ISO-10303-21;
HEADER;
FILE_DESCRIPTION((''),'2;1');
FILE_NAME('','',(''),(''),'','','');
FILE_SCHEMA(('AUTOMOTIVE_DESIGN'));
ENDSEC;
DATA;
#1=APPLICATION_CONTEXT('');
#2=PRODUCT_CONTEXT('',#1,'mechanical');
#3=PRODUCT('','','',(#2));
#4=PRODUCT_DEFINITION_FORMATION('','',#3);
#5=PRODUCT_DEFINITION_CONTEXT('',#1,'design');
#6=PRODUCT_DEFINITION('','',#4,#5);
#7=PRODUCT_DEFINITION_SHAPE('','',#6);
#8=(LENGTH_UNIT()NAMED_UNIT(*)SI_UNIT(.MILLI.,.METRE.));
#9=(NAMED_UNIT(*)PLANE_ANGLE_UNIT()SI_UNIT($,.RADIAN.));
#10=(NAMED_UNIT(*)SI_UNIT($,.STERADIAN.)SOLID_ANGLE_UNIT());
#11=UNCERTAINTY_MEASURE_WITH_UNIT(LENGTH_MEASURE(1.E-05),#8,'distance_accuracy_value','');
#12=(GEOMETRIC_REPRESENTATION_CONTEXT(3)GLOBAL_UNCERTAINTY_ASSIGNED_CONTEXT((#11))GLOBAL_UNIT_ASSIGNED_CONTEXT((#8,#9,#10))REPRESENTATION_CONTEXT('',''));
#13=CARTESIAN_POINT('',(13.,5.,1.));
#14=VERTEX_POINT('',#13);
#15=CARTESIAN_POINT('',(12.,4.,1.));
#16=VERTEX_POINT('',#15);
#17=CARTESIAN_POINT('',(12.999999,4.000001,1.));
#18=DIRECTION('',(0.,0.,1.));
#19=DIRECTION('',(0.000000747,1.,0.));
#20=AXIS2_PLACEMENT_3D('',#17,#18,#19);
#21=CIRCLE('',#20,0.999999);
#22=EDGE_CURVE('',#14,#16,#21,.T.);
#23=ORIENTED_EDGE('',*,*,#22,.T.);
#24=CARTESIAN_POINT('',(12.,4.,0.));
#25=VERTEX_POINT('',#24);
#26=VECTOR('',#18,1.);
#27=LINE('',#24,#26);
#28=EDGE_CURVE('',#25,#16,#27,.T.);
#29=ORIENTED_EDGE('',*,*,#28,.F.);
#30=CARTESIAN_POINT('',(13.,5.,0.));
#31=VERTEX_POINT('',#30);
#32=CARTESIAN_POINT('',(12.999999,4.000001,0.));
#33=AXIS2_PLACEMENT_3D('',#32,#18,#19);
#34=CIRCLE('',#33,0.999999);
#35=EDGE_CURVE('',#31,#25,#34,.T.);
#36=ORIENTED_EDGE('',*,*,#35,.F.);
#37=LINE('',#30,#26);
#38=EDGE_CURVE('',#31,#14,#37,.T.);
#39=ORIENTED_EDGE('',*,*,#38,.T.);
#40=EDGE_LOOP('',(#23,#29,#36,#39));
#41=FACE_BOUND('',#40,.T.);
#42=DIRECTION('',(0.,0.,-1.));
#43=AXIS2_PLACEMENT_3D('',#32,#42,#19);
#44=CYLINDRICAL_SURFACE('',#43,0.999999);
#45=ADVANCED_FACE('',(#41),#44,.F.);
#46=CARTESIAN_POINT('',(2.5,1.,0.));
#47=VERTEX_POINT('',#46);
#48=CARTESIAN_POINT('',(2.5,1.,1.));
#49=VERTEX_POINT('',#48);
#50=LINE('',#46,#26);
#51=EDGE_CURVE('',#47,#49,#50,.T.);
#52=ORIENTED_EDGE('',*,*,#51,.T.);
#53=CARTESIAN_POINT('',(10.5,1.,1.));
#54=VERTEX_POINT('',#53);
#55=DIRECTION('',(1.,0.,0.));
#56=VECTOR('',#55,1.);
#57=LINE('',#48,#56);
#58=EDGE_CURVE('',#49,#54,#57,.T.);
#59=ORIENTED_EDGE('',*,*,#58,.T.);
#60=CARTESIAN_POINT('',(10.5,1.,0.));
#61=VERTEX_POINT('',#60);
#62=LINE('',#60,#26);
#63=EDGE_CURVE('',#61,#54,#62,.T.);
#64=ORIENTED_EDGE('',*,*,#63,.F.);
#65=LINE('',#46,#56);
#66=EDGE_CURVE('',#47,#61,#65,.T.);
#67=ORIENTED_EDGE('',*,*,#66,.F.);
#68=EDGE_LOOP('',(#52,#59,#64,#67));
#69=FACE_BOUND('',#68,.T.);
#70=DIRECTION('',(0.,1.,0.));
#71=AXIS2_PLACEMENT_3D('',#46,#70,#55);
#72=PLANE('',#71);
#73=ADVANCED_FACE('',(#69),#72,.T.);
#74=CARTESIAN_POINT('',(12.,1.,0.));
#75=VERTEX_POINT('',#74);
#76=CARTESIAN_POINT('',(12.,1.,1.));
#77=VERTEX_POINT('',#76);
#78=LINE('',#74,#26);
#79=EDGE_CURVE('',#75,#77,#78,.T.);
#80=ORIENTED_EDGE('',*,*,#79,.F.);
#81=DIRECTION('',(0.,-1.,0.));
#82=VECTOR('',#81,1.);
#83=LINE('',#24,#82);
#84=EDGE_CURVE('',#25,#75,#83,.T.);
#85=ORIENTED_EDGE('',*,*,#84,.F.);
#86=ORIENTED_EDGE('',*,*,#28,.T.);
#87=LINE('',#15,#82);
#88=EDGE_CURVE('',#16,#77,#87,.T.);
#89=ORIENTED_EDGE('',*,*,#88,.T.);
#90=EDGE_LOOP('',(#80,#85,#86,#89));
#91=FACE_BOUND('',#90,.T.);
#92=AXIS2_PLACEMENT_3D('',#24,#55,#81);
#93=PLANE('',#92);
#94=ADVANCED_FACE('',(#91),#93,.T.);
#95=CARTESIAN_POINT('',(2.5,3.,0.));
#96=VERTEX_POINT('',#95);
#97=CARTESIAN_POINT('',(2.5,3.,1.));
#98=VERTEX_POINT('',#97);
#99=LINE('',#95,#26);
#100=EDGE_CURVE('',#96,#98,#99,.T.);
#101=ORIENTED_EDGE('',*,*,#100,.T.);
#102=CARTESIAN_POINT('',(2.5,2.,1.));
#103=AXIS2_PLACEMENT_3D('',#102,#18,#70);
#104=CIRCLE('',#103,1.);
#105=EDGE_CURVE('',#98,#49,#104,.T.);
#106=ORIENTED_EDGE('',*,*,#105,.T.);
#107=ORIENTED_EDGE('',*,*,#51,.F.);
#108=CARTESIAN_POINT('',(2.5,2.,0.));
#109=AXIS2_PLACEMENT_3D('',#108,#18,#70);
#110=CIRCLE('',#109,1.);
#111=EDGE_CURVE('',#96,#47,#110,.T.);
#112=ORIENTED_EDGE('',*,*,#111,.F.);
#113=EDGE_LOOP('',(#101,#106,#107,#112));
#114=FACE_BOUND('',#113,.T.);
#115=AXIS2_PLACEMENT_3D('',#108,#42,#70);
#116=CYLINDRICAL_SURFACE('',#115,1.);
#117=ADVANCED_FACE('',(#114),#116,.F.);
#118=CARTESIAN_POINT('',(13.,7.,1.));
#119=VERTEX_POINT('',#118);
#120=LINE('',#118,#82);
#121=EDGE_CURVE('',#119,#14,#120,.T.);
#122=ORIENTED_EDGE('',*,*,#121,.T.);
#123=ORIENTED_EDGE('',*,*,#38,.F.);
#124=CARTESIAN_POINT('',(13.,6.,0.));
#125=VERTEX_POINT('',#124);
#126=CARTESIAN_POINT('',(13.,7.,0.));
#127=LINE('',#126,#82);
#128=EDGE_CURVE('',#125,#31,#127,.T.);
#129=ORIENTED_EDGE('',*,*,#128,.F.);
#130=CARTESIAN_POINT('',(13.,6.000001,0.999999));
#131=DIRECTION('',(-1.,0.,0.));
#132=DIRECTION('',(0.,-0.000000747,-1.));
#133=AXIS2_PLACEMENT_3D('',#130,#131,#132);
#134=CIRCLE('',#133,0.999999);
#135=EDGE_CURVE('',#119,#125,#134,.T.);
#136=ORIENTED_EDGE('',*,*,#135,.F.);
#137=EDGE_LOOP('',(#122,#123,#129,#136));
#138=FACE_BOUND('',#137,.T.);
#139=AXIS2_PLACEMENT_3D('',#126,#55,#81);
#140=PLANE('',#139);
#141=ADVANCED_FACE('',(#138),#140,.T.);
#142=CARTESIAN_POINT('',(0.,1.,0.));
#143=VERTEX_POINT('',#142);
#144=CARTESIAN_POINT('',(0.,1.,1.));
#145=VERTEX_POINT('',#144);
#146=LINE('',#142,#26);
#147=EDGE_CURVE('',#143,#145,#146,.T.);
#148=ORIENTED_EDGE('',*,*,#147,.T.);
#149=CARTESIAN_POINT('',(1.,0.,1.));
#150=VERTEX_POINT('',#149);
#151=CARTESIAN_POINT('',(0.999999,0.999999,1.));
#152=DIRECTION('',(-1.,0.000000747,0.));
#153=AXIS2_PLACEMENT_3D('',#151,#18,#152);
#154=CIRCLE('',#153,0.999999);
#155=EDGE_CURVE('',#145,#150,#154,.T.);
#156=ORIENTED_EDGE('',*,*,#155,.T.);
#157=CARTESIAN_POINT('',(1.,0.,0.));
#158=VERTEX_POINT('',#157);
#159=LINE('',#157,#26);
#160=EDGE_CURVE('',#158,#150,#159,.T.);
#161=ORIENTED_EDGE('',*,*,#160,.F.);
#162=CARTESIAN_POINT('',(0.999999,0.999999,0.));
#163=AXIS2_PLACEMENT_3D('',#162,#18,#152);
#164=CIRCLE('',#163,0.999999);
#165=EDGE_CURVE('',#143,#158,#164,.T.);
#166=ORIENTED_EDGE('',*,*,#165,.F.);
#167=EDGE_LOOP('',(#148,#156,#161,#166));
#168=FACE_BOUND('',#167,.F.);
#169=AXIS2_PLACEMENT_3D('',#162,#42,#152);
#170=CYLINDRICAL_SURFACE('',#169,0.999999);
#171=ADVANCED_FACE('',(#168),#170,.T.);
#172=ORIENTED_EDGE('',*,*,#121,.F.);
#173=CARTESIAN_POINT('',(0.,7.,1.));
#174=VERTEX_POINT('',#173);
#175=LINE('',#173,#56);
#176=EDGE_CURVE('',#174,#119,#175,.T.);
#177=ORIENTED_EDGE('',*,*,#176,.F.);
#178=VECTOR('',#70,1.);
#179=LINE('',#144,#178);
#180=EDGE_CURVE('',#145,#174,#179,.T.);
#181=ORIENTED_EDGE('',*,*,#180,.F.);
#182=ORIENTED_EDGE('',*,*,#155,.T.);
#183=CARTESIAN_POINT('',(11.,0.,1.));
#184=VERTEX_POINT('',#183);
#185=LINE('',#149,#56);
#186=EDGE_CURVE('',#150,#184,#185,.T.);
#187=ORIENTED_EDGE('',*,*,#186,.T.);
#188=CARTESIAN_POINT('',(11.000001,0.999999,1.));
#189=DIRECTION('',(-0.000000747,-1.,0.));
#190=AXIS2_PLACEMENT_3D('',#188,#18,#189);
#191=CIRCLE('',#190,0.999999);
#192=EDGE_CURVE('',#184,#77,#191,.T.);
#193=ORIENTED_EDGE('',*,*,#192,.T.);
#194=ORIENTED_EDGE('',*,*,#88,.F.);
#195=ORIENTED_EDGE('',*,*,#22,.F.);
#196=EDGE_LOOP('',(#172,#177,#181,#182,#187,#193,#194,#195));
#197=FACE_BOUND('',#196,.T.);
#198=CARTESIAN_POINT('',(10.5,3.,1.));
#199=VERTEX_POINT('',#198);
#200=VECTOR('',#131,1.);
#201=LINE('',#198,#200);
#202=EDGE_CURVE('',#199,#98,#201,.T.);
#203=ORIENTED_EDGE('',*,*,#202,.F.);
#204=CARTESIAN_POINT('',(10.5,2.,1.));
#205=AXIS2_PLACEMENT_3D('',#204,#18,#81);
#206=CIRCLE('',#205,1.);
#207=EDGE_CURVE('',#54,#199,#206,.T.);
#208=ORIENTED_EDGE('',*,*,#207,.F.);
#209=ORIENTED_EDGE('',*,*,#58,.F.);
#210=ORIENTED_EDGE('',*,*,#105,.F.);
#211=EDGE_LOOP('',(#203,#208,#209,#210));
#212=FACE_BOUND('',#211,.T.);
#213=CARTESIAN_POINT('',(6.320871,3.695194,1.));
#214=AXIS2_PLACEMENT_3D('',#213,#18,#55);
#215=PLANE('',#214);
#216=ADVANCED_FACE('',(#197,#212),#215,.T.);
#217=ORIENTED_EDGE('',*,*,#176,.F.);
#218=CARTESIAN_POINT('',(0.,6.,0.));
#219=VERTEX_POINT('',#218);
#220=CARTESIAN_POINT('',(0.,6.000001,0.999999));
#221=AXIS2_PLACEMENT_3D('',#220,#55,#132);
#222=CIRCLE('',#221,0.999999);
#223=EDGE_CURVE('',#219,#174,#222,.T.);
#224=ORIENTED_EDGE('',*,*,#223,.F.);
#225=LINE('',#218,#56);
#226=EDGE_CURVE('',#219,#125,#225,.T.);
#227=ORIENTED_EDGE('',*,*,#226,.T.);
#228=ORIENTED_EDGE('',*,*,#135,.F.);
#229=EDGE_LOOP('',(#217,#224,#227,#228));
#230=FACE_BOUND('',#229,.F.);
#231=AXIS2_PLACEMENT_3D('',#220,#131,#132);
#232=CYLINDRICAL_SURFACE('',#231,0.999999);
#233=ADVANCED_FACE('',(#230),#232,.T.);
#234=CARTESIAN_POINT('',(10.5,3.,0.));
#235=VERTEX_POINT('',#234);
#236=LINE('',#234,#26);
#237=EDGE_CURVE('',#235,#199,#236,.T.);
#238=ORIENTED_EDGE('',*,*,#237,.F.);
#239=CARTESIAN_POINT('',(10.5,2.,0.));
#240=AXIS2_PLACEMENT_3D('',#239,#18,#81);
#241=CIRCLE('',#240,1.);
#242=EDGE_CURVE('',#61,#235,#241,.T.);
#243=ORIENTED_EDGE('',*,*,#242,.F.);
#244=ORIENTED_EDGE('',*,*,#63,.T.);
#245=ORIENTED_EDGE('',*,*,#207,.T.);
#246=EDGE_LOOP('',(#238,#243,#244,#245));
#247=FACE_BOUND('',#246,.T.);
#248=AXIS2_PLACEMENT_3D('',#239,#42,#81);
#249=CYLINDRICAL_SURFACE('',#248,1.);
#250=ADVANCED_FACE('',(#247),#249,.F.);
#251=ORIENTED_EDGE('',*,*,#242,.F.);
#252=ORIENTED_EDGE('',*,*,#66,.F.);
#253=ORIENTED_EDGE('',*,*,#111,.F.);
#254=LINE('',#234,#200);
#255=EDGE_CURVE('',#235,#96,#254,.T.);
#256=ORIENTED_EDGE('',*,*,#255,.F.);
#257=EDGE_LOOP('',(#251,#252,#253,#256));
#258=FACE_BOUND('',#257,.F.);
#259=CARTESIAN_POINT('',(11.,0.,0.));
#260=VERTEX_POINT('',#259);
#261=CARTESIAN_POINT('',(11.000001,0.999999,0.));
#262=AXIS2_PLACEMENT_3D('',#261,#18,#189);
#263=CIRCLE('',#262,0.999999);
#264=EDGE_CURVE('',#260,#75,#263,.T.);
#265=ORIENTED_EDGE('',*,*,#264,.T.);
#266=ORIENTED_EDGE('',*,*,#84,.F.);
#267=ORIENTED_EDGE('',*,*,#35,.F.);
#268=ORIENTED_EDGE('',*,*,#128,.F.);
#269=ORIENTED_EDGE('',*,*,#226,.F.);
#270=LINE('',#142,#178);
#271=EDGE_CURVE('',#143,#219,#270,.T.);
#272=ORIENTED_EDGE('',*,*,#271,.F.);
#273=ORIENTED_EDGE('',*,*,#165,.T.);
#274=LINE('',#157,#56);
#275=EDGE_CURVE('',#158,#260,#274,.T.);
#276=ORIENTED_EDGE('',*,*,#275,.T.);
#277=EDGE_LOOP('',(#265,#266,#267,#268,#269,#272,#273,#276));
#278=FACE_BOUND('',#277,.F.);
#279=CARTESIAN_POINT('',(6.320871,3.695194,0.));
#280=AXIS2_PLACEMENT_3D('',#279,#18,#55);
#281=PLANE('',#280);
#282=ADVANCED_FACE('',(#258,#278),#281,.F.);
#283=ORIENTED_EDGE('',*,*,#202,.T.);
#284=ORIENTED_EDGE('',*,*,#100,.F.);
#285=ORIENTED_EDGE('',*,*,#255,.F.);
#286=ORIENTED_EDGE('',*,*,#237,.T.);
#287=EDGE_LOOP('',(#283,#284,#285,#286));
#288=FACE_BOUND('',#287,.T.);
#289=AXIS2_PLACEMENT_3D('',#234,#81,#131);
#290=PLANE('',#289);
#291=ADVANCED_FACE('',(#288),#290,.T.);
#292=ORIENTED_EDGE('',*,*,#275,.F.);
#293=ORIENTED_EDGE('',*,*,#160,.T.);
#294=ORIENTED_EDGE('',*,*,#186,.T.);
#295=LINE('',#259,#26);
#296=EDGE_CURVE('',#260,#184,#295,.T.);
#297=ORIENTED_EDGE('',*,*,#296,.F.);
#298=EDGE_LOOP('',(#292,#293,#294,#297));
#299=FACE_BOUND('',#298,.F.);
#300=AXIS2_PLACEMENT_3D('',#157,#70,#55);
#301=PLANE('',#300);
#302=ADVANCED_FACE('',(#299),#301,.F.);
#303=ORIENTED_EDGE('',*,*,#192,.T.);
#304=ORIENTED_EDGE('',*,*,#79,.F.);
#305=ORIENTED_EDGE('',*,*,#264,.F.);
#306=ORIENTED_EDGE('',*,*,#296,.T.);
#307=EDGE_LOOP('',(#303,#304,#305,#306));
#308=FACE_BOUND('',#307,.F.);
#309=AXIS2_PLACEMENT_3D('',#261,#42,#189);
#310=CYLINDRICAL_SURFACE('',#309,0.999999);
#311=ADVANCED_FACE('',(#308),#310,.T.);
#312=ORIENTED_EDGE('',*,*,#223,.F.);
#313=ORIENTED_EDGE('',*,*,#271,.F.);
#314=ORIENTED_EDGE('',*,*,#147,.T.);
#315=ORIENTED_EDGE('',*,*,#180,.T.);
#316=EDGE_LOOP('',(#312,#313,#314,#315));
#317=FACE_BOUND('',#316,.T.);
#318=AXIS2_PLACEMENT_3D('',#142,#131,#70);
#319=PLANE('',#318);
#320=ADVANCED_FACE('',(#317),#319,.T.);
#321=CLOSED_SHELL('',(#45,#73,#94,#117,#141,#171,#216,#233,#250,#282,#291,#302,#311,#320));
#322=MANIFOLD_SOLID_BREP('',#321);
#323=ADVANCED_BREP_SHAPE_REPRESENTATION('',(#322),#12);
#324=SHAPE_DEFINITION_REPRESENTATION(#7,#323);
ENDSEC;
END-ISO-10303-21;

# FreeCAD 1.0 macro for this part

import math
import FreeCAD as App
import Part
import Sketcher
from FreeCAD import Vector

doc = App.newDocument("Part")
body = doc.addObject("PartDesign::Body", "Body")

# Sketch on YZ plane
sketch1 = doc.addObject("Sketcher::SketchObject", "Sketch")
body.addObject(sketch1)
sketch1.AttachmentSupport = (doc.YZ_Plane, [""])
sketch1.MapMode = "FlatFace"
sketch1.addGeometry(Part.ArcOfCircle(Part.Circle(Vector(6, 1, 0), Vector(0, 0, 1), 1), math.radians(-90), math.radians(0)), False)
sketch1.addGeometry(Part.LineSegment(Vector(6, 0, 0), Vector(7, 0, 0)), False)
sketch1.addGeometry(Part.LineSegment(Vector(7, 0, 0), Vector(7, 1, 0)), False)
sketch1.addConstraint(Sketcher.Constraint("Tangent", 0, 1, 1, 1))
sketch1.addConstraint(Sketcher.Constraint("Coincident", 1, 2, 2, 1))
sketch1.addConstraint(Sketcher.Constraint("Tangent", 2, 2, 0, 2))
sketch1.addConstraint(Sketcher.Constraint("Horizontal", 1))
sketch1.addConstraint(Sketcher.Constraint("Vertical", 2))
sketch1.addConstraint(Sketcher.Constraint("PointOnObject", 0, 1, -1))
sketch1.addConstraint(Sketcher.Constraint("Radius", 0, 0.999999))
sketch1.addConstraint(Sketcher.Constraint("DistanceX", -1, 1, 0, 3, 6.000001))
pad1 = doc.addObject("PartDesign::Pad", "Pad")
body.addObject(pad1)
pad1.Profile = sketch1
pad1.Length = 15
body2 = doc.addObject("PartDesign::Body", "Body001")

# Sketch on XY plane
sketch2 = doc.addObject("Sketcher::SketchObject", "Sketch001")
body2.addObject(sketch2)
sketch2.AttachmentSupport = (doc.getObject("XY_Plane001"), [""])
sketch2.MapMode = "FlatFace"
sketch2.addGeometry(Part.ArcOfCircle(Part.Circle(Vector(10.5, 2, 0), Vector(0, 0, 1), 1), math.radians(-90), math.radians(90)), False)
sketch2.addGeometry(Part.LineSegment(Vector(10.5, 3, 0), Vector(2.5, 3, 0)), False)
sketch2.addGeometry(Part.ArcOfCircle(Part.Circle(Vector(2.5, 2, 0), Vector(0, 0, 1), 1), math.radians(90), math.radians(270)), False)
sketch2.addGeometry(Part.LineSegment(Vector(2.5, 1, 0), Vector(10.5, 1, 0)), False)
sketch2.addConstraint(Sketcher.Constraint("Tangent", 0, 2, 1, 1))
sketch2.addConstraint(Sketcher.Constraint("Tangent", 1, 2, 2, 1))
sketch2.addConstraint(Sketcher.Constraint("Tangent", 2, 2, 3, 1))
sketch2.addConstraint(Sketcher.Constraint("Tangent", 3, 2, 0, 1))
sketch2.addConstraint(Sketcher.Constraint("Horizontal", 1))
sketch2.addConstraint(Sketcher.Constraint("Horizontal", 3))
sketch2.addConstraint(Sketcher.Constraint("Radius", 0, 1.0))
sketch2.addConstraint(Sketcher.Constraint("DistanceX", 1, 2, 1, 1, 8.0))
sketch2.addConstraint(Sketcher.Constraint("DistanceY", -1, 1, 0, 3, 2.0))
sketch2.addConstraint(Sketcher.Constraint("DistanceX", -1, 1, 0, 3, 10.5))
pad2 = doc.addObject("PartDesign::Pad", "Pad001")
body2.addObject(pad2)
pad2.Profile = sketch2
pad2.Length = 1
body3 = doc.addObject("PartDesign::Body", "Body002")

# Sketch on XY plane
sketch3 = doc.addObject("Sketcher::SketchObject", "Sketch002")
body3.addObject(sketch3)
sketch3.AttachmentSupport = (doc.getObject("XY_Plane002"), [""])
sketch3.MapMode = "FlatFace"
sketch3.addGeometry(Part.ArcOfCircle(Part.Circle(Vector(1, 1, 0), Vector(0, 0, 1), 1), math.radians(180), math.radians(270)), False)
sketch3.addGeometry(Part.LineSegment(Vector(1, 0, 0), Vector(11, 0, 0)), False)
sketch3.addGeometry(Part.ArcOfCircle(Part.Circle(Vector(11, 1, 0), Vector(0, 0, 1), 1), math.radians(-90), math.radians(0)), False)
sketch3.addGeometry(Part.LineSegment(Vector(12, 1, 0), Vector(12, 4, 0)), False)
sketch3.addGeometry(Part.ArcOfCircle(Part.Circle(Vector(13, 4, 0), Vector(0, 0, 1), 1), math.radians(90), math.radians(180)), False)
sketch3.addGeometry(Part.LineSegment(Vector(13, 5, 0), Vector(13, 7, 0)), False)
sketch3.addGeometry(Part.LineSegment(Vector(13, 7, 0), Vector(0, 7, 0)), False)
sketch3.addGeometry(Part.LineSegment(Vector(0, 7, 0), Vector(0, 1, 0)), False)
sketch3.addConstraint(Sketcher.Constraint("Tangent", 0, 2, 1, 1))
sketch3.addConstraint(Sketcher.Constraint("Tangent", 1, 2, 2, 1))
sketch3.addConstraint(Sketcher.Constraint("Tangent", 2, 2, 3, 1))
sketch3.addConstraint(Sketcher.Constraint("Tangent", 3, 2, 4, 2))
sketch3.addConstraint(Sketcher.Constraint("Coincident", 4, 1, 5, 1))
sketch3.addConstraint(Sketcher.Constraint("Coincident", 5, 2, 6, 1))
sketch3.addConstraint(Sketcher.Constraint("Coincident", 6, 2, 7, 1))
sketch3.addConstraint(Sketcher.Constraint("Tangent", 7, 2, 0, 1))
sketch3.addConstraint(Sketcher.Constraint("Horizontal", 1))
sketch3.addConstraint(Sketcher.Constraint("Vertical", 3))
sketch3.addConstraint(Sketcher.Constraint("Vertical", 5))
sketch3.addConstraint(Sketcher.Constraint("Horizontal", 6))
sketch3.addConstraint(Sketcher.Constraint("Vertical", 7))
sketch3.addConstraint(Sketcher.Constraint("Equal", 0, 2))
sketch3.addConstraint(Sketcher.Constraint("Equal", 2, 4))
sketch3.addConstraint(Sketcher.Constraint("PointOnObject", 0, 2, -1))
sketch3.addConstraint(Sketcher.Constraint("PointOnObject", 6, 2, -2))
sketch3.addConstraint(Sketcher.Constraint("Radius", 0, 0.999999))
sketch3.addConstraint(Sketcher.Constraint("DistanceX", 1, 1, 1, 2, 10.0))
sketch3.addConstraint(Sketcher.Constraint("DistanceX", 6, 2, 6, 1, 13.0))
sketch3.addConstraint(Sketcher.Constraint("DistanceY", 3, 1, 3, 2, 3.0))
sketch3.addConstraint(Sketcher.Constraint("DistanceY", 5, 1, 5, 2, 2.0))
pad3 = doc.addObject("PartDesign::Pad", "Pad002")
body3.addObject(pad3)
pad3.Profile = sketch3
pad3.Length = 1
doc.recompute()

boolean = doc.addObject("PartDesign::Boolean", "Boolean")
body3.addObject(boolean)
boolean.Type = "Cut"
boolean.addObjects([body2])
doc.recompute()

boolean2 = doc.addObject("PartDesign::Boolean", "Boolean001")
body3.addObject(boolean2)
boolean2.Type = "Cut"
boolean2.addObjects([body])

doc.recompute()
